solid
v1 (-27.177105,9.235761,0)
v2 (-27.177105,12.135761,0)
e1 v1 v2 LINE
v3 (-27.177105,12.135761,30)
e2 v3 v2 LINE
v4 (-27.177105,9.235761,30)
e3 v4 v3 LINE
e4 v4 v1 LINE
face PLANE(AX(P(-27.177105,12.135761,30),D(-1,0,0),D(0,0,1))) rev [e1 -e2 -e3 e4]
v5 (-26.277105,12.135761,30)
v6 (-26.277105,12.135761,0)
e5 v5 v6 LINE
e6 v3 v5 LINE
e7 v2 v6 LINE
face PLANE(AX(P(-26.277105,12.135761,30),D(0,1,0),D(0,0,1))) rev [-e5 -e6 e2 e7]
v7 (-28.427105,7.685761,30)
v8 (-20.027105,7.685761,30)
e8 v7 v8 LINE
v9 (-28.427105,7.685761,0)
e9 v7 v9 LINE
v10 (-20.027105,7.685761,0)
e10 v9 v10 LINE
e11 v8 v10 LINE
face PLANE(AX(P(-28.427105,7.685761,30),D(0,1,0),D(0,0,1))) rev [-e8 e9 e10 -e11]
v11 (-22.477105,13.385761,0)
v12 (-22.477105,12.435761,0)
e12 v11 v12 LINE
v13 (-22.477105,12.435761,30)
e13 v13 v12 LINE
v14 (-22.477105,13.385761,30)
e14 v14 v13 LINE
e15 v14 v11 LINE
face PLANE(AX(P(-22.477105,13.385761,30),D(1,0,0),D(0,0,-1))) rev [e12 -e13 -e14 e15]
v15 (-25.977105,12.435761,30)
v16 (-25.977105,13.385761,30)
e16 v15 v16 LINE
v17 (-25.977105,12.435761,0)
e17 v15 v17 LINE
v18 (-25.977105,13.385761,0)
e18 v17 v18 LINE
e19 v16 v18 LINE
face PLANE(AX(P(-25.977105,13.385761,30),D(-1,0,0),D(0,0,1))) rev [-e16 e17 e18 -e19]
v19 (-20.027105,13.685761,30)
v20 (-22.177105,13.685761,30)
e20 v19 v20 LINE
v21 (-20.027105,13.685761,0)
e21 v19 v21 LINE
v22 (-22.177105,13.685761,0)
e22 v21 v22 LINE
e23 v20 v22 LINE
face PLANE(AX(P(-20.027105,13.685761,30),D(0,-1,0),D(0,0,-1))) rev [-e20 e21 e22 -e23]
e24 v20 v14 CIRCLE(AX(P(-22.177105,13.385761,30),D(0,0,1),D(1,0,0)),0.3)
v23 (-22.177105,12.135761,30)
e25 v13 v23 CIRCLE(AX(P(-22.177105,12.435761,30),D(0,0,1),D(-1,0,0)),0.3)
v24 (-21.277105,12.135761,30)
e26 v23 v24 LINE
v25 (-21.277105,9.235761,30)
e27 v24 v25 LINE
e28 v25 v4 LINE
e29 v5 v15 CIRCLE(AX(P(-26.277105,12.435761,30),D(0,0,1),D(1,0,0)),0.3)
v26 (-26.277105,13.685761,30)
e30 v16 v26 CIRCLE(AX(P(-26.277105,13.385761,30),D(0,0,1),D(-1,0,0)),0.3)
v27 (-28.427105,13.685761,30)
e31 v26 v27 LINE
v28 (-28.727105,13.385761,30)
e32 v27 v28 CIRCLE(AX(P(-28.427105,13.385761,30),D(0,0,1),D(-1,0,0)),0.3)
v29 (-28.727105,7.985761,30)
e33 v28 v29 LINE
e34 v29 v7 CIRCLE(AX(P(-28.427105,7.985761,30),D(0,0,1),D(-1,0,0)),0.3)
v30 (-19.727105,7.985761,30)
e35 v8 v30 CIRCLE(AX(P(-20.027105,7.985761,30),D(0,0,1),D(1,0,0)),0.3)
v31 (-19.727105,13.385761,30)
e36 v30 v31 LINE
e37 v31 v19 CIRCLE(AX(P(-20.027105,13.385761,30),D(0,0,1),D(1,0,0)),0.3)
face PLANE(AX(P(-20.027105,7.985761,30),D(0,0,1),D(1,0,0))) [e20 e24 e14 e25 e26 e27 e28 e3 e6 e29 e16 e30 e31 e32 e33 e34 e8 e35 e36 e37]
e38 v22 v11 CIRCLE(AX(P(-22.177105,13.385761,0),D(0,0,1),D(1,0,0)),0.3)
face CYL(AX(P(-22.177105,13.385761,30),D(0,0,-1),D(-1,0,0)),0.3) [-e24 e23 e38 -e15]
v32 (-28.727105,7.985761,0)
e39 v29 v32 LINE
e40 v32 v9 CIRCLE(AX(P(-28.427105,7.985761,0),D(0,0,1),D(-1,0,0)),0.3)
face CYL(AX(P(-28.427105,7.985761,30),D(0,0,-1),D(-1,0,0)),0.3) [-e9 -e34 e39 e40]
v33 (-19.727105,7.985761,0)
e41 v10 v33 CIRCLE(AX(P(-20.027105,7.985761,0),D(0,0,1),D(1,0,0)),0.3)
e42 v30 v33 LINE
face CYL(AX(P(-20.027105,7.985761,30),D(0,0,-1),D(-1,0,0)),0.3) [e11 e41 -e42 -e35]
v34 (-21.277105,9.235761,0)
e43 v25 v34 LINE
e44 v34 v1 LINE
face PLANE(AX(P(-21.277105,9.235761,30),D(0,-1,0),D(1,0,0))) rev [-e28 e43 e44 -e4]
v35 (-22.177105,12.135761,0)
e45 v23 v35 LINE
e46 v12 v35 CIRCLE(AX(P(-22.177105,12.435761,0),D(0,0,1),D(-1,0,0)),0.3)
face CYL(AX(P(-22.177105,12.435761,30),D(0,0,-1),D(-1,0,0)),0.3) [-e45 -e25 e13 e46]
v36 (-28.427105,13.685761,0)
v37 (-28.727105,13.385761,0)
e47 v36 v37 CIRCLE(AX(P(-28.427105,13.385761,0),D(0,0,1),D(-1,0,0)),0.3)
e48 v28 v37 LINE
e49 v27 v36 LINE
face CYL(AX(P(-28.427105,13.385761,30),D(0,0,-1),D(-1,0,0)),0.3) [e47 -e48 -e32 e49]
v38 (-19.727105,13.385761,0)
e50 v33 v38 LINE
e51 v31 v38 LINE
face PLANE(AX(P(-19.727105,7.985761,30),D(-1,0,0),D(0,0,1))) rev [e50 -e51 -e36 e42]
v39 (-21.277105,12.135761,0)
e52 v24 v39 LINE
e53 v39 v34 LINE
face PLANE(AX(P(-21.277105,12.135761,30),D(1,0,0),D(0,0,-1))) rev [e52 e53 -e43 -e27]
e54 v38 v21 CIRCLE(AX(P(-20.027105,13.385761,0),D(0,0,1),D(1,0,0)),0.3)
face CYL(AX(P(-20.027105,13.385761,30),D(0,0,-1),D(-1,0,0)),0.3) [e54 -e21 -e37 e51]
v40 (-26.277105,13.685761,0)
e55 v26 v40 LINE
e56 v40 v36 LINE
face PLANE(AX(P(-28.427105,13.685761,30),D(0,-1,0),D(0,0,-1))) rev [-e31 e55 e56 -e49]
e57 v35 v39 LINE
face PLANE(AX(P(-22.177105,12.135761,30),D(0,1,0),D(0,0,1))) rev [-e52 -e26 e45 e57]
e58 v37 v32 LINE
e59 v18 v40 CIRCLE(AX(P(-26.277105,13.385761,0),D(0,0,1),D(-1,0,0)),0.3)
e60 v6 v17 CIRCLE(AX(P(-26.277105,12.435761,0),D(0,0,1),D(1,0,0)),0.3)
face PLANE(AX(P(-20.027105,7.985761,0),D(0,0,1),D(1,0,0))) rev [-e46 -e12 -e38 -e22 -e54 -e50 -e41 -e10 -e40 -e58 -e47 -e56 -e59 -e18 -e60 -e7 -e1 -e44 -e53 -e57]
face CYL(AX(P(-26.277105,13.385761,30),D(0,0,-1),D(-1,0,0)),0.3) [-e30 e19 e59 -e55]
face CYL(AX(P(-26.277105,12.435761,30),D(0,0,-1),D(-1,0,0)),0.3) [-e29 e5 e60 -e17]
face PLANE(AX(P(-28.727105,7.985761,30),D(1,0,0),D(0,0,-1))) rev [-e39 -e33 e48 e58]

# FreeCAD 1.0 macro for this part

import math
import FreeCAD as App
import Part
import Sketcher

doc = App.newDocument("Part")
body = doc.addObject("PartDesign::Body", "Body")

# Sketch on XY plane
sketch1 = body.newObject("Sketcher::SketchObject", "Sketch")
sketch1.AttachmentSupport = (doc.getObject("XY_Plane"), [""])
sketch1.MapMode = "FlatFace"
sketch1.addGeometry([
    Part.LineSegment(App.Vector(-28.427105, 7.685761, 0), App.Vector(-20.027105, 7.685761, 0)),  # 0
    Part.ArcOfCircle(Part.Circle(App.Vector(-20.027105, 7.985761, 0), App.Vector(0, 0, 1), 0.3), math.radians(-90), math.radians(0)),  # 1
    Part.LineSegment(App.Vector(-19.727105, 7.985761, 0), App.Vector(-19.727105, 13.385761, 0)),  # 2
    Part.ArcOfCircle(Part.Circle(App.Vector(-20.027105, 13.385761, 0), App.Vector(0, 0, 1), 0.3), math.radians(0), math.radians(90)),  # 3
    Part.LineSegment(App.Vector(-20.027105, 13.685761, 0), App.Vector(-22.177105, 13.685761, 0)),  # 4
    Part.ArcOfCircle(Part.Circle(App.Vector(-22.177105, 13.385761, 0), App.Vector(0, 0, 1), 0.3), math.radians(90), math.radians(180)),  # 5
    Part.LineSegment(App.Vector(-22.477105, 13.385761, 0), App.Vector(-22.477105, 12.435761, 0)),  # 6
    Part.ArcOfCircle(Part.Circle(App.Vector(-22.177105, 12.435761, 0), App.Vector(0, 0, 1), 0.3), math.radians(180), math.radians(270)),  # 7
    Part.LineSegment(App.Vector(-22.177105, 12.135761, 0), App.Vector(-21.277105, 12.135761, 0)),  # 8
    Part.LineSegment(App.Vector(-21.277105, 12.135761, 0), App.Vector(-21.277105, 9.235761, 0)),  # 9
    Part.LineSegment(App.Vector(-21.277105, 9.235761, 0), App.Vector(-27.177105, 9.235761, 0)),  # 10
    Part.LineSegment(App.Vector(-27.177105, 9.235761, 0), App.Vector(-27.177105, 12.135761, 0)),  # 11
    Part.LineSegment(App.Vector(-27.177105, 12.135761, 0), App.Vector(-26.277105, 12.135761, 0)),  # 12
    Part.ArcOfCircle(Part.Circle(App.Vector(-26.277105, 12.435761, 0), App.Vector(0, 0, 1), 0.3), math.radians(-90), math.radians(0)),  # 13
    Part.LineSegment(App.Vector(-25.977105, 12.435761, 0), App.Vector(-25.977105, 13.385761, 0)),  # 14
    Part.ArcOfCircle(Part.Circle(App.Vector(-26.277105, 13.385761, 0), App.Vector(0, 0, 1), 0.3), math.radians(0), math.radians(90)),  # 15
    Part.LineSegment(App.Vector(-26.277105, 13.685761, 0), App.Vector(-28.427105, 13.685761, 0)),  # 16
    Part.ArcOfCircle(Part.Circle(App.Vector(-28.427105, 13.385761, 0), App.Vector(0, 0, 1), 0.3), math.radians(90), math.radians(180)),  # 17
    Part.LineSegment(App.Vector(-28.727105, 13.385761, 0), App.Vector(-28.727105, 7.985761, 0)),  # 18
    Part.ArcOfCircle(Part.Circle(App.Vector(-28.427105, 7.985761, 0), App.Vector(0, 0, 1), 0.3), math.radians(180), math.radians(270)),  # 19
], False)
sketch1.addConstraint([
    Sketcher.Constraint("Tangent", 0, 2, 1, 1),
    Sketcher.Constraint("Tangent", 1, 2, 2, 1),
    Sketcher.Constraint("Tangent", 2, 2, 3, 1),
    Sketcher.Constraint("Tangent", 3, 2, 4, 1),
    Sketcher.Constraint("Tangent", 4, 2, 5, 1),
    Sketcher.Constraint("Tangent", 5, 2, 6, 1),
    Sketcher.Constraint("Tangent", 6, 2, 7, 1),
    Sketcher.Constraint("Tangent", 7, 2, 8, 1),
    Sketcher.Constraint("Coincident", 8, 2, 9, 1),
    Sketcher.Constraint("Coincident", 9, 2, 10, 1),
    Sketcher.Constraint("Coincident", 10, 2, 11, 1),
    Sketcher.Constraint("Coincident", 11, 2, 12, 1),
    Sketcher.Constraint("Tangent", 12, 2, 13, 1),
    Sketcher.Constraint("Tangent", 13, 2, 14, 1),
    Sketcher.Constraint("Tangent", 14, 2, 15, 1),
    Sketcher.Constraint("Tangent", 15, 2, 16, 1),
    Sketcher.Constraint("Tangent", 16, 2, 17, 1),
    Sketcher.Constraint("Tangent", 17, 2, 18, 1),
    Sketcher.Constraint("Tangent", 18, 2, 19, 1),
    Sketcher.Constraint("Tangent", 19, 2, 0, 1),
    Sketcher.Constraint("Horizontal", 0),
    Sketcher.Constraint("Vertical", 2),
    Sketcher.Constraint("Horizontal", 4),
    Sketcher.Constraint("Vertical", 6),
    Sketcher.Constraint("Horizontal", 8),
    Sketcher.Constraint("Vertical", 9),
    Sketcher.Constraint("Horizontal", 10),
    Sketcher.Constraint("Vertical", 11),
    Sketcher.Constraint("Horizontal", 12),
    Sketcher.Constraint("Vertical", 14),
    Sketcher.Constraint("Horizontal", 16),
    Sketcher.Constraint("Vertical", 18),
    Sketcher.Constraint("Equal", 1, 3),
    Sketcher.Constraint("Equal", 3, 5),
    Sketcher.Constraint("Equal", 5, 7),
    Sketcher.Constraint("Equal", 7, 13),
    Sketcher.Constraint("Equal", 13, 15),
    Sketcher.Constraint("Equal", 15, 17),
    Sketcher.Constraint("Equal", 17, 19),
    Sketcher.Constraint("Horizontal", 7, 3, 13, 3),
    Sketcher.Constraint("Horizontal", 5, 3, 15, 3),
    Sketcher.Constraint("Equal", 8, 12),
    Sketcher.Constraint("Equal", 4, 16),
    Sketcher.Constraint("Radius", 1, 0.3),
    Sketcher.Constraint("DistanceX", 0, 1, 0, 2, 8.4),
    Sketcher.Constraint("DistanceX", 8, 1, 8, 2, 0.9),
    Sketcher.Constraint("DistanceX", 10, 2, 10, 1, 5.9),
    Sketcher.Constraint("DistanceY", 2, 1, 2, 2, 5.4),
    Sketcher.Constraint("DistanceY", 9, 2, 9, 1, 2.9),
    Sketcher.Constraint("DistanceY", 6, 2, 6, 1, 0.95),
    Sketcher.Constraint("DistanceY", -1, 1, 1, 3, 7.985761),
    Sketcher.Constraint("DistanceX", 1, 3, -1, 1, 20.027105),
])
pad1 = body.newObject("PartDesign::Pad", "Pad")
pad1.Profile = sketch1
pad1.Length = 30

doc.recompute()
